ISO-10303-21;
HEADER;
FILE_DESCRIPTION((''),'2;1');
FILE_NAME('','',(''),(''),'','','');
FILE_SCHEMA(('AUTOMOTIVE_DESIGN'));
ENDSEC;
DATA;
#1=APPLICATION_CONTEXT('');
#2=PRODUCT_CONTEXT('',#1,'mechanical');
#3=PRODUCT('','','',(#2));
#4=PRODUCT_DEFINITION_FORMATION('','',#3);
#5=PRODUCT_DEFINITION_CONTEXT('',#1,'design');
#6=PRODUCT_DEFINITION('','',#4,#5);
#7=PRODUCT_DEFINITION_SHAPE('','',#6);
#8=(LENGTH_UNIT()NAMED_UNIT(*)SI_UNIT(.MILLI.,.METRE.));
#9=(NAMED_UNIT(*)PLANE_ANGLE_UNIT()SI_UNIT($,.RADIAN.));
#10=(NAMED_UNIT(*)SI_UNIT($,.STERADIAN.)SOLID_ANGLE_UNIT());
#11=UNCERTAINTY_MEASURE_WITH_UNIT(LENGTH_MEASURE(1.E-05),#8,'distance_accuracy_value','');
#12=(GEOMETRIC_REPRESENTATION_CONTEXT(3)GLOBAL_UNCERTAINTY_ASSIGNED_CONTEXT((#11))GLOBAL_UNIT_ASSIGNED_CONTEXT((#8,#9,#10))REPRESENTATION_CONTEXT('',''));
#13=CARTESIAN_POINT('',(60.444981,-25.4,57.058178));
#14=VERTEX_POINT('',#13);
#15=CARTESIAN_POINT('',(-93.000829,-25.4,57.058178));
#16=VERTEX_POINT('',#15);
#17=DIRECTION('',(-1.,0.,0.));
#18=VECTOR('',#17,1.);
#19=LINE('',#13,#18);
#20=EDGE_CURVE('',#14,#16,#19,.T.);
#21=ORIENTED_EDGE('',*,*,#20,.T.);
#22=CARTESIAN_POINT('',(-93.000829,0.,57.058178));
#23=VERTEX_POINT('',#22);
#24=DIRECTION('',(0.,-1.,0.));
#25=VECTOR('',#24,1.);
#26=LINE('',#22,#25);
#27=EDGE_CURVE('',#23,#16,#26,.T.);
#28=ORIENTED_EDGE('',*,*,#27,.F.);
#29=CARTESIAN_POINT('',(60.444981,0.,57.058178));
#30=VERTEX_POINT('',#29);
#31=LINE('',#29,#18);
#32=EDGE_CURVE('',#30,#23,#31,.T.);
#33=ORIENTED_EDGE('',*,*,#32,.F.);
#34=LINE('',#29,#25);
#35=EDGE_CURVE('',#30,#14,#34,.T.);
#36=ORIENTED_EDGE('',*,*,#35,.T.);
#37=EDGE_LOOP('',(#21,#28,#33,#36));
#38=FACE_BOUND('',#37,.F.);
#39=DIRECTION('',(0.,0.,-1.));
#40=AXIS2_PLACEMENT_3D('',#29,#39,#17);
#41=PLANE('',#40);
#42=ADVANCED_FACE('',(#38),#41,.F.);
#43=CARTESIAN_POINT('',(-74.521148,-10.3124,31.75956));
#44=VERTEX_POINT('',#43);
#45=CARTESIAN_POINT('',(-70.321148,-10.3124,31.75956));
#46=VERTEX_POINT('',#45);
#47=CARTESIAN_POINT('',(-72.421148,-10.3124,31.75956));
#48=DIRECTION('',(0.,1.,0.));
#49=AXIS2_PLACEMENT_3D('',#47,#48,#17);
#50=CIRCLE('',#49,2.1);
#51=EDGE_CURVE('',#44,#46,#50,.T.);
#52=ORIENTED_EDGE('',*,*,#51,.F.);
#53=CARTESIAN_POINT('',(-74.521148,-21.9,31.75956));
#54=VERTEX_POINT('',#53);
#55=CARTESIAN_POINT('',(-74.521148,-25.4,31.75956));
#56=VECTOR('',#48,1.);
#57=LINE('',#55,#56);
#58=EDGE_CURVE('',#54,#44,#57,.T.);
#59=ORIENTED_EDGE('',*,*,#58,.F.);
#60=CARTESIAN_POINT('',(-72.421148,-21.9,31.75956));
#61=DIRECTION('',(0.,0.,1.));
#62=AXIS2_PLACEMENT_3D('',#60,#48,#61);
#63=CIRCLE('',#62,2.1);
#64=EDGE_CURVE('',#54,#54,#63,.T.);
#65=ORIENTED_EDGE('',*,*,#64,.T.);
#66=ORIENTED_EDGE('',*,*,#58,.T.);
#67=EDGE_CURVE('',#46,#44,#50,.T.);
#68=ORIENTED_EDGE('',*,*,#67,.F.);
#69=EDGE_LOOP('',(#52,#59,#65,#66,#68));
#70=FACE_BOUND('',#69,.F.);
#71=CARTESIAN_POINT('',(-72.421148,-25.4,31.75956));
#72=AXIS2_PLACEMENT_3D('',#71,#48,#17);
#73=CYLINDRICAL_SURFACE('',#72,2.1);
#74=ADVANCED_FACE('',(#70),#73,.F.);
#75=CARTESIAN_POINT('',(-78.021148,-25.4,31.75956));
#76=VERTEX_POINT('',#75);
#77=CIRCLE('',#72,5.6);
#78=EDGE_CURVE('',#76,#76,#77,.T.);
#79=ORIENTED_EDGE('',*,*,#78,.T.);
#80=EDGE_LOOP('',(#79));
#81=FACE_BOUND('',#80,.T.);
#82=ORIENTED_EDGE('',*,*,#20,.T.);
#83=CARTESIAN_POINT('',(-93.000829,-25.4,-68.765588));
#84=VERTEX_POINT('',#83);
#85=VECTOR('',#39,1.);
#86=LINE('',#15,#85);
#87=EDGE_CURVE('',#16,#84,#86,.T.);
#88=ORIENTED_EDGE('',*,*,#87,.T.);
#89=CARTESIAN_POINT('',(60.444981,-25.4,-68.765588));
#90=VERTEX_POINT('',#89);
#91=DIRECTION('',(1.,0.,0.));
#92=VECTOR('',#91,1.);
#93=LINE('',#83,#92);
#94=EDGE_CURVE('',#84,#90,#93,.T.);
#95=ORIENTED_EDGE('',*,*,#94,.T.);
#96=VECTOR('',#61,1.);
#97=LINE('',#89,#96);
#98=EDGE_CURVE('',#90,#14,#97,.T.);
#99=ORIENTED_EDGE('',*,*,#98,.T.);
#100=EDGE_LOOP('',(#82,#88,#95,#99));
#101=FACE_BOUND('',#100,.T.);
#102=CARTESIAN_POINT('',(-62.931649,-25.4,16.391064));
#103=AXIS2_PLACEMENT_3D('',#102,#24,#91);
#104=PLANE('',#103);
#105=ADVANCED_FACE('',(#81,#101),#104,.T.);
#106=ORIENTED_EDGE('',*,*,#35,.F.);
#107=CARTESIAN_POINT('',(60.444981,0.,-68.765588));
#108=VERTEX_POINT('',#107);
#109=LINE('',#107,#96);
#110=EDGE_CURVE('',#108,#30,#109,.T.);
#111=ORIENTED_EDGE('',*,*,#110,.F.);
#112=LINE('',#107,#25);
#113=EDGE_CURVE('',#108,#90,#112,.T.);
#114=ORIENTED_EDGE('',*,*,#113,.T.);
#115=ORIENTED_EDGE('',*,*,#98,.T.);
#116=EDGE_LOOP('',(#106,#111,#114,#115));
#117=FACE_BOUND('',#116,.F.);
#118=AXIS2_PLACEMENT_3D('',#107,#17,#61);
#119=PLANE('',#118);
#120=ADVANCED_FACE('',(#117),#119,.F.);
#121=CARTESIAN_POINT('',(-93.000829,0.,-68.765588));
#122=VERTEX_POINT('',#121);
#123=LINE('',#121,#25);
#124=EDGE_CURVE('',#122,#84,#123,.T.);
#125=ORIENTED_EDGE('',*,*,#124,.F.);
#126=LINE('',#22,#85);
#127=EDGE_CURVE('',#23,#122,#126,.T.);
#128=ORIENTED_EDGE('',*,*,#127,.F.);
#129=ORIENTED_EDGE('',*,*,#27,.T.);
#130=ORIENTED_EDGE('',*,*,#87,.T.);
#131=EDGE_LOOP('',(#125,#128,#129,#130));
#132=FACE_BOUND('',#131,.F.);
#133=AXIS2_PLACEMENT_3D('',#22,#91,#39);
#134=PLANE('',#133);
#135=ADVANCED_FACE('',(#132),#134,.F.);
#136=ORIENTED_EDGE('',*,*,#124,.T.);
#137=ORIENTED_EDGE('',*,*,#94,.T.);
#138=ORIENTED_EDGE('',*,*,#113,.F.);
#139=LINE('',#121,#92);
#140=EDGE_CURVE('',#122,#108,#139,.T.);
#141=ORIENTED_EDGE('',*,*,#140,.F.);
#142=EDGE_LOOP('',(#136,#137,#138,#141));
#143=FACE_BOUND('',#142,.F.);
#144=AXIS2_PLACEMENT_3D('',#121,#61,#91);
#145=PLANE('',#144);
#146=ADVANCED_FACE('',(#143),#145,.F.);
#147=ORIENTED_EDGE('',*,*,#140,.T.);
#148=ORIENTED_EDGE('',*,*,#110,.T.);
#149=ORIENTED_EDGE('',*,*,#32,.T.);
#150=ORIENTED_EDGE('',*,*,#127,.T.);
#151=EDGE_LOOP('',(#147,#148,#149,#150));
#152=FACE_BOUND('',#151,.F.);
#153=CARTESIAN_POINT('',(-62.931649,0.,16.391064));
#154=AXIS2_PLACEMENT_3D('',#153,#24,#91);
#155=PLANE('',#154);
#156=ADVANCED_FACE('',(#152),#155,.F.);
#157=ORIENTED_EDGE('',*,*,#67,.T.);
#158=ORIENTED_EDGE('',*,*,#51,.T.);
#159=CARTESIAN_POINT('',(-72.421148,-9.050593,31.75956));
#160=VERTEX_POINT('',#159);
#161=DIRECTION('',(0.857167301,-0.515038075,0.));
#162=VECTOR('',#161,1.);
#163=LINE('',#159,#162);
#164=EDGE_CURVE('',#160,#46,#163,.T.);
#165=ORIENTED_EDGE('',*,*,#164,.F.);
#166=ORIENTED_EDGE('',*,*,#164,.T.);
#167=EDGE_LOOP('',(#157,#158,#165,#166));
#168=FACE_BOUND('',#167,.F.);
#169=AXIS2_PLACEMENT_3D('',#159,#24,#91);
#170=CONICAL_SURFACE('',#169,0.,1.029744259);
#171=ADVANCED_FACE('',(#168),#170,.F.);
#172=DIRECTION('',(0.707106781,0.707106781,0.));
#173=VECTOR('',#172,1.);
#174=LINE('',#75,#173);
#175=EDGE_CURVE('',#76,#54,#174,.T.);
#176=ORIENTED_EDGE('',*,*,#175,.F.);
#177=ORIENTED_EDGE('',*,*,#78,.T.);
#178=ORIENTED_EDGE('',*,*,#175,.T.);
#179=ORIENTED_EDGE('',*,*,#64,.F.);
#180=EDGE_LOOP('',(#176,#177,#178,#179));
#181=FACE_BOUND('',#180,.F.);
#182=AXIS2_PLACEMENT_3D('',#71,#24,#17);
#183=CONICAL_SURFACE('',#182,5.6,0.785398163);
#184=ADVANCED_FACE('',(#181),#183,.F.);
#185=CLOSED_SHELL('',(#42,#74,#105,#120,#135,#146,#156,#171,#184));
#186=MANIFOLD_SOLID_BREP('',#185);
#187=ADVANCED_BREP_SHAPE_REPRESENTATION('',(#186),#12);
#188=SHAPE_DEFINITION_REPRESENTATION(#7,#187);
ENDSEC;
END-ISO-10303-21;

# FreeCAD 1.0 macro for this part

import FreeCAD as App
import Part
import Sketcher
from FreeCAD import Vector
Q = App.Units.Quantity


def add_polygon(sketch, points):
    """Adds a closed chain of lines whose ends are joined by coincident constraints."""
    first, n = sketch.GeometryCount, len(points)
    for a, b in zip(points, points[1:] + points[:1]):
        sketch.addGeometry(Part.LineSegment(App.Vector(*a, 0), App.Vector(*b, 0)), False)
    for i in range(n):
        sketch.addConstraint(Sketcher.Constraint("Coincident", first + i, 2, first + (i + 1) % n, 1))

doc = App.newDocument("Part")
params = doc.addObject("Spreadsheet::Sheet", "Params")
for row, (alias, value) in enumerate([
    ("pad1_length", "1 in"),
    ("hole_diameter", "4.2 mm"),
    ("hole_depth", "0.594 in"),
    ("hole_csink_diameter", "11.2 mm"),
], start=1):
    params.set(f"A{row}", alias)
    params.set(f"B{row}", "=" + value)
    params.setAlias(f"B{row}", alias)

body = doc.addObject("PartDesign::Body", "Body")

sketch1 = body.newObject("Sketcher::SketchObject", "Sketch")
sketch1.AttachmentSupport = (doc.getObject("XZ_Plane"), [""])
sketch1.MapMode = "FlatFace"
add_polygon(sketch1, [(-93, -69), (60, -69), (60, 57), (-93, 57)])
sketch1.addConstraint([
    Sketcher.Constraint("Horizontal", 0),
    Sketcher.Constraint("Vertical", 1),
    Sketcher.Constraint("Horizontal", 2),
    Sketcher.Constraint("Vertical", 3),
    Sketcher.Constraint("DistanceX", 0, 1, 0, 2, Q("153.44581 mm")),
    Sketcher.Constraint("DistanceY", 1, 1, 1, 2, Q("125.823766 mm")),
    Sketcher.Constraint("DistanceX", -1, 1, 0, 2, Q("60.444981 mm")),
    Sketcher.Constraint("DistanceY", 0, 2, -1, 1, Q("68.765588 mm")),
])
pad1 = body.newObject("PartDesign::Pad", "Pad")
pad1.Profile = sketch1
pad1.setExpression("Length", "Params.pad1_length")

sketch2 = body.newObject("Sketcher::SketchObject", "Sketch001")
sketch2.AttachmentSupport = (doc.getObject("XZ_Plane"), [""])
sketch2.MapMode = "FlatFace"
sketch2.AttachmentOffset = App.Placement(Vector(0, 0, 1 * 25.4), App.Rotation())
sketch2.addGeometry(Part.Circle(Vector(-72.4, 31.8, 0), Vector(0, 0, 1), 2.1), False)
sketch2.addConstraint([
    Sketcher.Constraint("Diameter", 0, Q("4.2 mm")),
    Sketcher.Constraint("DistanceX", 0, 3, -1, 1, Q("72.421148 mm")),
    Sketcher.Constraint("DistanceY", -1, 1, 0, 3, Q("31.75956 mm")),
])
doc.recompute()
hole = body.newObject("PartDesign::Hole", "Hole")
hole.Profile = sketch2
hole.ThreadType = "None"
hole.setExpression("Diameter", "Params.hole_diameter")
hole.DepthType = "Dimension"
hole.setExpression("Depth", "Params.hole_depth")
hole.DrillPoint = "Angled"
hole.DrillPointAngle = 118
hole.HoleCutType = "Countersink"
hole.setExpression("HoleCutDiameter", "Params.hole_csink_diameter")
hole.HoleCutCountersinkAngle = 90

doc.recompute()
